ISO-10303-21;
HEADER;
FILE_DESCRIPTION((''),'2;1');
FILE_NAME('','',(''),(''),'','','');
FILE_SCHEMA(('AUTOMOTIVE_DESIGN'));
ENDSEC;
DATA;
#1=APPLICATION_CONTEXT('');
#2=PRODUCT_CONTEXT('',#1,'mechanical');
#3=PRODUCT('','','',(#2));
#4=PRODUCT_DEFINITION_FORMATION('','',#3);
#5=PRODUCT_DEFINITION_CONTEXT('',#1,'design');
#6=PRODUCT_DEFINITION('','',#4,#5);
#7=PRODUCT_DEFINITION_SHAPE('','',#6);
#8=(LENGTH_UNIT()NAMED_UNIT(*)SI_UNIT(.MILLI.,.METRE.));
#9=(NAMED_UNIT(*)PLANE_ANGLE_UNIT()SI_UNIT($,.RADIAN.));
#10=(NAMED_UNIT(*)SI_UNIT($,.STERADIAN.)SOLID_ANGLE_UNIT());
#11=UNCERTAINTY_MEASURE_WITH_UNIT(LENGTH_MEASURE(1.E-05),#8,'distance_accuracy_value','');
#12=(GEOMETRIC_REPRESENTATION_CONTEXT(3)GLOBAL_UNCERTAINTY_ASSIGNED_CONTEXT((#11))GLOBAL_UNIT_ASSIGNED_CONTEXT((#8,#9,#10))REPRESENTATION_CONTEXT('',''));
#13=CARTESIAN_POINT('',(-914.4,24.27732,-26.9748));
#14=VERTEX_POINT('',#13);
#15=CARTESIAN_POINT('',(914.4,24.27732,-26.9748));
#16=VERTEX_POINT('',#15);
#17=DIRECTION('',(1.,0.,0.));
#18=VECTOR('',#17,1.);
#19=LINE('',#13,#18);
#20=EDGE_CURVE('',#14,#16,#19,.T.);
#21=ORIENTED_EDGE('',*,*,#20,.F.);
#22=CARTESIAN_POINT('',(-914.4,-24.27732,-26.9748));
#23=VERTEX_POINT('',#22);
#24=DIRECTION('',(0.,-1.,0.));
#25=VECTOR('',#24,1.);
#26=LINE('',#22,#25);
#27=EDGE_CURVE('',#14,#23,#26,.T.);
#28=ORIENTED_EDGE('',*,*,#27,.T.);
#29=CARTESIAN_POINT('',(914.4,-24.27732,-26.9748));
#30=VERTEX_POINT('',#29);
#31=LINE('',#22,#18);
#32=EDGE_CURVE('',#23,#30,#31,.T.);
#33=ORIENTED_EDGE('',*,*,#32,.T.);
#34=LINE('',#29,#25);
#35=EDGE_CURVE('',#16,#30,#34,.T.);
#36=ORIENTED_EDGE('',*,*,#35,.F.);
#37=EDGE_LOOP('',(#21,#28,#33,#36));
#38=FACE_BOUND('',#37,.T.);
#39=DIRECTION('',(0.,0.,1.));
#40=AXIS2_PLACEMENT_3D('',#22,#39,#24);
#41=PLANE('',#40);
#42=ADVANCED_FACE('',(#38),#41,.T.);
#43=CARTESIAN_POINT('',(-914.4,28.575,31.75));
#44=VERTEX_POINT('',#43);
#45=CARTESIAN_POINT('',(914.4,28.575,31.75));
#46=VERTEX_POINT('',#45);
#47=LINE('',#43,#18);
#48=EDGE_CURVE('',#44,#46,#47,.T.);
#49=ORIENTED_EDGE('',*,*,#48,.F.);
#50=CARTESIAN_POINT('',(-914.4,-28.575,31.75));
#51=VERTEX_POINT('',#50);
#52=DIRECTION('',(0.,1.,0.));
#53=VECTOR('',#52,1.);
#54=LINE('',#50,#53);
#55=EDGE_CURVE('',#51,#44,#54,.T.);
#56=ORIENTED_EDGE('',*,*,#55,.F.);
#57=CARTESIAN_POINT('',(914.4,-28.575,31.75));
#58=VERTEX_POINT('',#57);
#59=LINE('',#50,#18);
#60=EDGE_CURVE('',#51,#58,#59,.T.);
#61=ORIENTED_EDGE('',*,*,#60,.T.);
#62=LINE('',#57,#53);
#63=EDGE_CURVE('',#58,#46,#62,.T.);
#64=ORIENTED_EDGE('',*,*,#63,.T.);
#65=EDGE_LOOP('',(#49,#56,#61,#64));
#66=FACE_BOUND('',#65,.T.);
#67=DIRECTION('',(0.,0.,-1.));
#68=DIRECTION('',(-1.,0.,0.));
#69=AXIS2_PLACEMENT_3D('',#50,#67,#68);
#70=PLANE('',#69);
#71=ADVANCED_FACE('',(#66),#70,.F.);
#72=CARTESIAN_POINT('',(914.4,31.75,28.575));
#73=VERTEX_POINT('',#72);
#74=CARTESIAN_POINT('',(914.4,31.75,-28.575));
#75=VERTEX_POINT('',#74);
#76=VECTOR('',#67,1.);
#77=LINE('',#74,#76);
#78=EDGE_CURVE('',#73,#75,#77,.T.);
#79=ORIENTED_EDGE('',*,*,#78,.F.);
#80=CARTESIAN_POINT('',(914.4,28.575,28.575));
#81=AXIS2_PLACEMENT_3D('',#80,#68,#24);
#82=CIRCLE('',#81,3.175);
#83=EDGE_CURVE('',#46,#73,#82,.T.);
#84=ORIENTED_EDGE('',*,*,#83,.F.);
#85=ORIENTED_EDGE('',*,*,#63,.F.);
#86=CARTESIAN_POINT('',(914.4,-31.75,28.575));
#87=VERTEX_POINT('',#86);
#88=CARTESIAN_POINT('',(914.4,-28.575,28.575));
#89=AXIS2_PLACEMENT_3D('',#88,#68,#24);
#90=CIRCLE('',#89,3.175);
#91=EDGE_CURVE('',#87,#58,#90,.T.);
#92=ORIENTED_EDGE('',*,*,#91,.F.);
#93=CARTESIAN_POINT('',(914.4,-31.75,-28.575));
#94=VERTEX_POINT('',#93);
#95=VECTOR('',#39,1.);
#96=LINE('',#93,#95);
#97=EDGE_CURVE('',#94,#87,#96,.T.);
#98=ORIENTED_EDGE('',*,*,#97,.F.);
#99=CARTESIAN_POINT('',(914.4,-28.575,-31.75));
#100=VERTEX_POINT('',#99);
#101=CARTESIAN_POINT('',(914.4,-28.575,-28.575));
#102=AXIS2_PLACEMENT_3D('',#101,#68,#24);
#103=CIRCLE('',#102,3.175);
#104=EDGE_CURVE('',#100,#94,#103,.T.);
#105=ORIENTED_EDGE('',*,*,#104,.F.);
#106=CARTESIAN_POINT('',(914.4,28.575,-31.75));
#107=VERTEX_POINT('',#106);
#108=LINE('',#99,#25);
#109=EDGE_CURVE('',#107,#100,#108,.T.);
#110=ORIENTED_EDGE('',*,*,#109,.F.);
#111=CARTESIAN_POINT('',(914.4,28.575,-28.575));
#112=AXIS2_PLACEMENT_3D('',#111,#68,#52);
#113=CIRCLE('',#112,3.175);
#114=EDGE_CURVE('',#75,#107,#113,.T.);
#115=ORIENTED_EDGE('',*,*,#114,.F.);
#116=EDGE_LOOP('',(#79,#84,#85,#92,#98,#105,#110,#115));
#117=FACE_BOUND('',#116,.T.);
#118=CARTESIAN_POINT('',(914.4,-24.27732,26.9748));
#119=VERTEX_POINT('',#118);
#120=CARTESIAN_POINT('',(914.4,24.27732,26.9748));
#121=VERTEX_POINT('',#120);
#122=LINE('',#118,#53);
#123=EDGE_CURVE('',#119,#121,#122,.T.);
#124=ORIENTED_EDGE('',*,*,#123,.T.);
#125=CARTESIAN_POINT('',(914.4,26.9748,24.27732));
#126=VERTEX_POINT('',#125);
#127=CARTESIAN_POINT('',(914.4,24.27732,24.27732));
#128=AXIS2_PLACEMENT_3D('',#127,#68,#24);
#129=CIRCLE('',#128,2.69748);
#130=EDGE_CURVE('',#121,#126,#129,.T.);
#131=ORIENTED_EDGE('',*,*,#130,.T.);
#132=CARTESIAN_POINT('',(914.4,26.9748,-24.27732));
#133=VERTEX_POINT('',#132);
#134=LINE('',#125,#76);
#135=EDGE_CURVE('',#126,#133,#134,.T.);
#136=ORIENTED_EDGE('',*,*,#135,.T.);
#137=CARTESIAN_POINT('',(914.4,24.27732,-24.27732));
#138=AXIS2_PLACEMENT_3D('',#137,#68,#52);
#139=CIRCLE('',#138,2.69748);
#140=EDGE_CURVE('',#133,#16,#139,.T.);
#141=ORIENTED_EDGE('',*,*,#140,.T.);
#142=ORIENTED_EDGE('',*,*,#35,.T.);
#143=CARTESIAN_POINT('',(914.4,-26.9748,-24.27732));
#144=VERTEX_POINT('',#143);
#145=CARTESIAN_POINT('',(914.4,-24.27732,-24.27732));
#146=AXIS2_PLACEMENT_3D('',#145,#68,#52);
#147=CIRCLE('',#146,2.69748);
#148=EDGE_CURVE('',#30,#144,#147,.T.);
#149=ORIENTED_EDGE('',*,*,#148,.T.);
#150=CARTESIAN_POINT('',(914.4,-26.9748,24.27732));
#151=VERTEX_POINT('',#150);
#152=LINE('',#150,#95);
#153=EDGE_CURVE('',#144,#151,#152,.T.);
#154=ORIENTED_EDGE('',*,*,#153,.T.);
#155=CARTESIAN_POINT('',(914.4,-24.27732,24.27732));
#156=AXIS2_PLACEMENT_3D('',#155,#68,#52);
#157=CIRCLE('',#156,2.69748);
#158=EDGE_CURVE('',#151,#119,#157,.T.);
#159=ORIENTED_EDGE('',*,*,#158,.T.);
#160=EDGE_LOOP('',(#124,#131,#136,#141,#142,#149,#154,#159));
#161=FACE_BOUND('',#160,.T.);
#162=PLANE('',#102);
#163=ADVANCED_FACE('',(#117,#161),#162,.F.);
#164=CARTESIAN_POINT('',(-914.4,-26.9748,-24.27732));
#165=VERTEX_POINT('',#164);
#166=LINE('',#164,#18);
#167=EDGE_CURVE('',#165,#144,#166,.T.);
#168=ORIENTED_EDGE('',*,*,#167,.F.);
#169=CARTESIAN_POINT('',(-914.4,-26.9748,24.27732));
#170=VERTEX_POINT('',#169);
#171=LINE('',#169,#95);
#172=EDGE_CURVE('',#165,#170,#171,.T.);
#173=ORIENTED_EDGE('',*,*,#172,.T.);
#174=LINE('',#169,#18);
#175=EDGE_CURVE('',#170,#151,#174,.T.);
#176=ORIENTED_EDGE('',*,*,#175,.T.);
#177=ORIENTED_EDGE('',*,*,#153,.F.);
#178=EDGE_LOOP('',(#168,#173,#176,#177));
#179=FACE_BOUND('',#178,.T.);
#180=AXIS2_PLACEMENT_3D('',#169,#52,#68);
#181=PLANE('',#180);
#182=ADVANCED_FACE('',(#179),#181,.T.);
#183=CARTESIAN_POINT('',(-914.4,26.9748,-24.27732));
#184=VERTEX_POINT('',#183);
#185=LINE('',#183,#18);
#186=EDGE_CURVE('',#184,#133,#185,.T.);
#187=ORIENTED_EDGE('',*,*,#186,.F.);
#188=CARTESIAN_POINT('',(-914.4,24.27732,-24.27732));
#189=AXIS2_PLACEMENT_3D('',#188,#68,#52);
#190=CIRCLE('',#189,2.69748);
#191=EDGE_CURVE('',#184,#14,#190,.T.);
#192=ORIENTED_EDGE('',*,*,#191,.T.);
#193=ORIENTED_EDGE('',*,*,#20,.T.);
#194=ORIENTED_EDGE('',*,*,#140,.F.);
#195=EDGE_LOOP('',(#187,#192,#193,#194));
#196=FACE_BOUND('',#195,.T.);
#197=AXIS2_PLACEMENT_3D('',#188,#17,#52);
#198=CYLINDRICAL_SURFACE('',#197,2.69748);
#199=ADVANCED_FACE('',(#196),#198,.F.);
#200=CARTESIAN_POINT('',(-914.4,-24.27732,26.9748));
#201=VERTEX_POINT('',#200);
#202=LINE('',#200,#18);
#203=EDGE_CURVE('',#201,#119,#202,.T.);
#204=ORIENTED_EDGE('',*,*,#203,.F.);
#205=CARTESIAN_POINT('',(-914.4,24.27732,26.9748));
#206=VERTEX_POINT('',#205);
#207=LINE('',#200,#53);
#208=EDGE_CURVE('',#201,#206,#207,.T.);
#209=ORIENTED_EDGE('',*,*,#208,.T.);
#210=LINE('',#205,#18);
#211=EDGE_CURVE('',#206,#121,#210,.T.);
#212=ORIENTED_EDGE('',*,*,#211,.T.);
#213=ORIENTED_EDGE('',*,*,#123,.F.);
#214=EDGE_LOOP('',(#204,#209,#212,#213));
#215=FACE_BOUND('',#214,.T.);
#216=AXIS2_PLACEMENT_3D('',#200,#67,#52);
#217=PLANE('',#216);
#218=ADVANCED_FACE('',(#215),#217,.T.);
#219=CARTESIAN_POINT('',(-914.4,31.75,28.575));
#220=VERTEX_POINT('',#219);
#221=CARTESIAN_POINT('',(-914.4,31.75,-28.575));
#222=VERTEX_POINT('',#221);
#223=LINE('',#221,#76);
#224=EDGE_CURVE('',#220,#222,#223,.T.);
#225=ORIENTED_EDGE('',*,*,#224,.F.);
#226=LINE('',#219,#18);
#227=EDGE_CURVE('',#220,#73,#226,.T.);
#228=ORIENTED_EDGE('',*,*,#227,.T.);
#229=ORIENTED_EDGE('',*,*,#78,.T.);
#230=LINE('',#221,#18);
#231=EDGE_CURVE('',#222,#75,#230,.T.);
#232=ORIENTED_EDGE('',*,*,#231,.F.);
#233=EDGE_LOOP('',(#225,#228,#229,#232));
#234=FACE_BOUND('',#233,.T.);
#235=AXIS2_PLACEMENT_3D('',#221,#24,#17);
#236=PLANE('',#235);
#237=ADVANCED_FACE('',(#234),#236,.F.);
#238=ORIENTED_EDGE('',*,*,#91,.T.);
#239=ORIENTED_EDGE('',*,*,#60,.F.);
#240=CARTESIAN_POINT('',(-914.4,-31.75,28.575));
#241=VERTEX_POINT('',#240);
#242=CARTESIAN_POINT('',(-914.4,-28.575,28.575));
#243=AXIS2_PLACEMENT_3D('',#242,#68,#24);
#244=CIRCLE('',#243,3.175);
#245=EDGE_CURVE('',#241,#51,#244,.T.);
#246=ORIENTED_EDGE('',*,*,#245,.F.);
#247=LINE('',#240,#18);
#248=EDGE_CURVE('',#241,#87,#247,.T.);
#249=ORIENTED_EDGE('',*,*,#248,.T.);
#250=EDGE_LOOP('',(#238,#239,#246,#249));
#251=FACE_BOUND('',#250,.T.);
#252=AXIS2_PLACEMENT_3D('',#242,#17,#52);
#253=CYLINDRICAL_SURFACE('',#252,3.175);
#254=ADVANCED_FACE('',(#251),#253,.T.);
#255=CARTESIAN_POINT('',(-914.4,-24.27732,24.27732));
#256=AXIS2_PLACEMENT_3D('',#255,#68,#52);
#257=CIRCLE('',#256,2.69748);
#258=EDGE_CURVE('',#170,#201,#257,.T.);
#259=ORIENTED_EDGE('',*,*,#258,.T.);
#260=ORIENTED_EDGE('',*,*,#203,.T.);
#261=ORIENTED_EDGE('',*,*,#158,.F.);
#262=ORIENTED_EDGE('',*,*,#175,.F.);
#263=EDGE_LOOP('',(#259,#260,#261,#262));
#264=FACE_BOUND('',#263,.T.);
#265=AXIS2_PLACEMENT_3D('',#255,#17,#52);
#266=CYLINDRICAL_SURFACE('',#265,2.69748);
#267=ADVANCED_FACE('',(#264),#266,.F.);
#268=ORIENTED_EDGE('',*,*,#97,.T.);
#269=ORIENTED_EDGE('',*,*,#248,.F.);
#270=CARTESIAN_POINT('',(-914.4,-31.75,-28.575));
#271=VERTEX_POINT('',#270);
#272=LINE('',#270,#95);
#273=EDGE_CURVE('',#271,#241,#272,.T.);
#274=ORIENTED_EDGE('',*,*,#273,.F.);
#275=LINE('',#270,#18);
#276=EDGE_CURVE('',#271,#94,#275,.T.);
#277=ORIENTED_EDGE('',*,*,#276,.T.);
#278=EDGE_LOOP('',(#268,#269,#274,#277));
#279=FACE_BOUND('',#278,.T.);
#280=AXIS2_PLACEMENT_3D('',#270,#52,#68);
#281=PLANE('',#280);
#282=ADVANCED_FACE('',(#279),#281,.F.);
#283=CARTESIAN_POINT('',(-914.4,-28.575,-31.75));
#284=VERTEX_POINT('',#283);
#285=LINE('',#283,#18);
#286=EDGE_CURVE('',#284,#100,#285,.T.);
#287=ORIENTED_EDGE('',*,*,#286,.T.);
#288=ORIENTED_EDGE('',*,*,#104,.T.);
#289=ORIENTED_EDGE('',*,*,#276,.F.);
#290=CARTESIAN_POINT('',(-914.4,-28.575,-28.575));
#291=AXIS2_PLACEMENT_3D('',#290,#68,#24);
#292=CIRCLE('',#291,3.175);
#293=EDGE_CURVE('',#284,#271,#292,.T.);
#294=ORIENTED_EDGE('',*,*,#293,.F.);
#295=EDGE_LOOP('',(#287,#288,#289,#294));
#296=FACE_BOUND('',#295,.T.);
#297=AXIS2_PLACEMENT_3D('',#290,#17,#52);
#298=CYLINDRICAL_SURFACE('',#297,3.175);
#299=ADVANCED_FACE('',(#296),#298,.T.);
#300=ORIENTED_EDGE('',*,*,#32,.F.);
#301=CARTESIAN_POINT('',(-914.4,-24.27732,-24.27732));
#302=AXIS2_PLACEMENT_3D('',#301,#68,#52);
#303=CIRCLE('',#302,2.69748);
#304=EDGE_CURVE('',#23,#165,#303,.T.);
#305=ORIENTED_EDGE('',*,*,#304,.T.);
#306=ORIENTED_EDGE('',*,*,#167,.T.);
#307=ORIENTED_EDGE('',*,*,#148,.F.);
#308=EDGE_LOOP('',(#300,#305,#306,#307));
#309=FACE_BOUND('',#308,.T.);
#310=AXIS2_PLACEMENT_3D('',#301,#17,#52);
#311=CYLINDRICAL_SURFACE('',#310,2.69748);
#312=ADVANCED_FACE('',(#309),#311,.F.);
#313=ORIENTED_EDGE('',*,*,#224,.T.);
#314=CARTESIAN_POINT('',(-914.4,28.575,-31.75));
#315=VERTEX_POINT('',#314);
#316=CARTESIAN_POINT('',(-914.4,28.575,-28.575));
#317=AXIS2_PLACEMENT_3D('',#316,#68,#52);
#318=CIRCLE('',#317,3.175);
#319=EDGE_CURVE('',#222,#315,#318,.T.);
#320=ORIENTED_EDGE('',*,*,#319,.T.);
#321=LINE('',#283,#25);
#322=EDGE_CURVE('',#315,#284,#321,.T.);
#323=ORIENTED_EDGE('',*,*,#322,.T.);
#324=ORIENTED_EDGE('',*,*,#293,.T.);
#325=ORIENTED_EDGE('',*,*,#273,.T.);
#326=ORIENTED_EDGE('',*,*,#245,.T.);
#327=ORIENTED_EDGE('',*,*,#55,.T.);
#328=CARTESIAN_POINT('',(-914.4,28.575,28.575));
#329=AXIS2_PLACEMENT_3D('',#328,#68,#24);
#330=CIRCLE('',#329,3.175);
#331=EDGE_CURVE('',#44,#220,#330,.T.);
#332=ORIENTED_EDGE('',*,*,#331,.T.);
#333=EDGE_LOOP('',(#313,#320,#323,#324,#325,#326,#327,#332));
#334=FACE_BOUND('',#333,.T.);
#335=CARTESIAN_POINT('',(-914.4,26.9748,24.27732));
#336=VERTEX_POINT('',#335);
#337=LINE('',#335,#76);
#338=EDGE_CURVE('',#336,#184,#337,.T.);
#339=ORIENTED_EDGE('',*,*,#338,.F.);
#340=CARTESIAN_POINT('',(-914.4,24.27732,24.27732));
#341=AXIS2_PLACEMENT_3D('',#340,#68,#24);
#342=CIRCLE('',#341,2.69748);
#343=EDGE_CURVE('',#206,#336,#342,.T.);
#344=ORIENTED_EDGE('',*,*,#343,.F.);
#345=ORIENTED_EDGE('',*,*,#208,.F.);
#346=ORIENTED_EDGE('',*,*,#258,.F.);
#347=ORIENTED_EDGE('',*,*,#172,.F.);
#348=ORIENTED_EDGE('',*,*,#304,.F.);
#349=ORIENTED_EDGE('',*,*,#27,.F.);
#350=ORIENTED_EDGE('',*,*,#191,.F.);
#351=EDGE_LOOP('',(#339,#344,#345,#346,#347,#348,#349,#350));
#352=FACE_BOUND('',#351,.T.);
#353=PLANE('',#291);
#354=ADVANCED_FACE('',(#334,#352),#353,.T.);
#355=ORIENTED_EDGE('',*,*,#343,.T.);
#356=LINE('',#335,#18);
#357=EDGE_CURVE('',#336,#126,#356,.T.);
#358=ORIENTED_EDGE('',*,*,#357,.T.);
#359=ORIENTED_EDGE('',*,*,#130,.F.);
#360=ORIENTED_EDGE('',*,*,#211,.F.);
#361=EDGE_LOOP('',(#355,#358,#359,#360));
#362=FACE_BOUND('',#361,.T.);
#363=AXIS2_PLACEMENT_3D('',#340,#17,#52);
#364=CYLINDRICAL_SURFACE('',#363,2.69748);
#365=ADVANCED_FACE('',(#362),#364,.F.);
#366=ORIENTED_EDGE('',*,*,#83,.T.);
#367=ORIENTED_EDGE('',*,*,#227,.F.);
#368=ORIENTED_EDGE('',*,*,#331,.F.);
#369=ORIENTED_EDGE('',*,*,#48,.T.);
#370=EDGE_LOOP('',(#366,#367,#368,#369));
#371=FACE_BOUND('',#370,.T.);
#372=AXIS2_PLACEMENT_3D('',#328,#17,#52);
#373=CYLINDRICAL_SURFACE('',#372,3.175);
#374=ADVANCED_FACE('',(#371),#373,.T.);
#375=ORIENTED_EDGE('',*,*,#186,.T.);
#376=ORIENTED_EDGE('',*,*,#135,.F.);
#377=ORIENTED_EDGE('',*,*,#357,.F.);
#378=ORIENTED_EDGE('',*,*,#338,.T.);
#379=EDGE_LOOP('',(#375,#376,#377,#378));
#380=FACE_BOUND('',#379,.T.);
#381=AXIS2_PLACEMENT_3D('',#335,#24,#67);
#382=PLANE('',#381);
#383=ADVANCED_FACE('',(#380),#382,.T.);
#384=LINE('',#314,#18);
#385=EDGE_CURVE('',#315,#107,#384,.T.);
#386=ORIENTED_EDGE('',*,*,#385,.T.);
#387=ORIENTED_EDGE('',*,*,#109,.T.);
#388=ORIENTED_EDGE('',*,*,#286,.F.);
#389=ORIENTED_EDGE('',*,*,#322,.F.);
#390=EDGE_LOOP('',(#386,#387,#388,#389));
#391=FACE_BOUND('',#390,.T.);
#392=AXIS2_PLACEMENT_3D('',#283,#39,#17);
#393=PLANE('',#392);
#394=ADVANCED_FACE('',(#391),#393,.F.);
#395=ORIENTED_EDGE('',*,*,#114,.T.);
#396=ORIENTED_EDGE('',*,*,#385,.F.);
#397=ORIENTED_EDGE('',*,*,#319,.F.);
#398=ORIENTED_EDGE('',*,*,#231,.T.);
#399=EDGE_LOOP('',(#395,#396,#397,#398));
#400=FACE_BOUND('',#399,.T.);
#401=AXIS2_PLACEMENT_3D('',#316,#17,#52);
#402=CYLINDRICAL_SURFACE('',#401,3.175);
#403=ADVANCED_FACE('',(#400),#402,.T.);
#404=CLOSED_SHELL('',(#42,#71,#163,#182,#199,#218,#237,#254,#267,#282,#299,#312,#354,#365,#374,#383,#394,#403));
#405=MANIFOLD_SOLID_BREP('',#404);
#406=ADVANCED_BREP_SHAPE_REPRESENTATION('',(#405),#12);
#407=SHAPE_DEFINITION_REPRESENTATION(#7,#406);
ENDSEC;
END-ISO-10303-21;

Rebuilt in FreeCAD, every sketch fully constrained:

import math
import FreeCAD as App
import Part
import Sketcher
Q = App.Units.Quantity

doc = App.newDocument("Part")
body = doc.addObject("PartDesign::Body", "Body")

# Sketch on YZ plane
sketch1 = body.newObject("Sketcher::SketchObject", "Sketch")
sketch1.AttachmentSupport = (doc.getObject("YZ_Plane"), [""])
sketch1.MapMode = "FlatFace"
sketch1.AttachmentOffset = App.Placement(App.Vector(0, 0, 36 * 25.4), App.Rotation())
sketch1.addGeometry(Part.LineSegment(App.Vector(28.575, -31.75, 0), App.Vector(-28.575, -31.75, 0)), False)
sketch1.addGeometry(Part.ArcOfCircle(Part.Circle(App.Vector(-28.575, -28.575, 0), App.Vector(0, 0, 1), 3.175), math.radians(-180), math.radians(-90)), False)
sketch1.addGeometry(Part.LineSegment(App.Vector(-31.75, -28.575, 0), App.Vector(-31.75, 28.575, 0)), False)
sketch1.addGeometry(Part.ArcOfCircle(Part.Circle(App.Vector(-28.575, 28.575, 0), App.Vector(0, 0, 1), 3.175), math.radians(90), math.radians(180)), False)
sketch1.addGeometry(Part.LineSegment(App.Vector(-28.575, 31.75, 0), App.Vector(28.575, 31.75, 0)), False)
sketch1.addGeometry(Part.ArcOfCircle(Part.Circle(App.Vector(28.575, 28.575, 0), App.Vector(0, 0, 1), 3.175), math.radians(0), math.radians(90)), False)
sketch1.addGeometry(Part.LineSegment(App.Vector(31.75, 28.575, 0), App.Vector(31.75, -28.575, 0)), False)
sketch1.addGeometry(Part.ArcOfCircle(Part.Circle(App.Vector(28.575, -28.575, 0), App.Vector(0, 0, 1), 3.175), math.radians(-90), math.radians(0)), False)
sketch1.addGeometry(Part.ArcOfCircle(Part.Circle(App.Vector(-24.27732, 24.27732, 0), App.Vector(0, 0, 1), 2.69748), math.radians(90), math.radians(180)), False)
sketch1.addGeometry(Part.LineSegment(App.Vector(-26.9748, 24.27732, 0), App.Vector(-26.9748, -24.27732, 0)), False)
sketch1.addGeometry(Part.ArcOfCircle(Part.Circle(App.Vector(-24.27732, -24.27732, 0), App.Vector(0, 0, 1), 2.69748), math.radians(180), math.radians(270)), False)
sketch1.addGeometry(Part.LineSegment(App.Vector(-24.27732, -26.9748, 0), App.Vector(24.27732, -26.9748, 0)), False)
sketch1.addGeometry(Part.ArcOfCircle(Part.Circle(App.Vector(24.27732, -24.27732, 0), App.Vector(0, 0, 1), 2.69748), math.radians(-90), math.radians(0)), False)
sketch1.addGeometry(Part.LineSegment(App.Vector(26.9748, -24.27732, 0), App.Vector(26.9748, 24.27732, 0)), False)
sketch1.addGeometry(Part.ArcOfCircle(Part.Circle(App.Vector(24.27732, 24.27732, 0), App.Vector(0, 0, 1), 2.69748), math.radians(0), math.radians(90)), False)
sketch1.addGeometry(Part.LineSegment(App.Vector(24.27732, 26.9748, 0), App.Vector(-24.27732, 26.9748, 0)), False)
sketch1.addConstraint(Sketcher.Constraint("Tangent", 0, 2, 1, 2))
sketch1.addConstraint(Sketcher.Constraint("Tangent", 1, 1, 2, 1))
sketch1.addConstraint(Sketcher.Constraint("Tangent", 2, 2, 3, 2))
sketch1.addConstraint(Sketcher.Constraint("Tangent", 3, 1, 4, 1))
sketch1.addConstraint(Sketcher.Constraint("Tangent", 4, 2, 5, 2))
sketch1.addConstraint(Sketcher.Constraint("Tangent", 5, 1, 6, 1))
sketch1.addConstraint(Sketcher.Constraint("Tangent", 6, 2, 7, 2))
sketch1.addConstraint(Sketcher.Constraint("Tangent", 7, 1, 0, 1))
sketch1.addConstraint(Sketcher.Constraint("Tangent", 8, 2, 9, 1))
sketch1.addConstraint(Sketcher.Constraint("Tangent", 9, 2, 10, 1))
sketch1.addConstraint(Sketcher.Constraint("Tangent", 10, 2, 11, 1))
sketch1.addConstraint(Sketcher.Constraint("Tangent", 11, 2, 12, 1))
sketch1.addConstraint(Sketcher.Constraint("Tangent", 12, 2, 13, 1))
sketch1.addConstraint(Sketcher.Constraint("Tangent", 13, 2, 14, 1))
sketch1.addConstraint(Sketcher.Constraint("Tangent", 14, 2, 15, 1))
sketch1.addConstraint(Sketcher.Constraint("Tangent", 15, 2, 8, 1))
sketch1.addConstraint(Sketcher.Constraint("Horizontal", 0))
sketch1.addConstraint(Sketcher.Constraint("Vertical", 2))
sketch1.addConstraint(Sketcher.Constraint("Horizontal", 4))
sketch1.addConstraint(Sketcher.Constraint("Vertical", 6))
sketch1.addConstraint(Sketcher.Constraint("Vertical", 9))
sketch1.addConstraint(Sketcher.Constraint("Horizontal", 11))
sketch1.addConstraint(Sketcher.Constraint("Vertical", 13))
sketch1.addConstraint(Sketcher.Constraint("Horizontal", 15))
sketch1.addConstraint(Sketcher.Constraint("Equal", 1, 3))
sketch1.addConstraint(Sketcher.Constraint("Equal", 3, 5))
sketch1.addConstraint(Sketcher.Constraint("Equal", 5, 7))
sketch1.addConstraint(Sketcher.Constraint("Equal", 8, 10))
sketch1.addConstraint(Sketcher.Constraint("Equal", 10, 12))
sketch1.addConstraint(Sketcher.Constraint("Equal", 12, 14))
sketch1.addConstraint(Sketcher.Constraint("Symmetric", 1, 3, 5, 3, -1, 1))
sketch1.addConstraint(Sketcher.Constraint("Symmetric", 8, 3, 12, 3, -1, 1))
sketch1.addConstraint(Sketcher.Constraint("Equal", 4, 2))
sketch1.addConstraint(Sketcher.Constraint("Equal", 15, 9))
sketch1.addConstraint(Sketcher.Constraint("Radius", 1, Q("0.125 in")))
sketch1.addConstraint(Sketcher.Constraint("DistanceX", 0, 2, 0, 1, Q("2.25 in")))
sketch1.addConstraint(Sketcher.Constraint("Radius", 8, Q("0.1062 in")))
sketch1.addConstraint(Sketcher.Constraint("DistanceX", 11, 1, 11, 2, Q("1.9116 in")))
pad1 = body.newObject("PartDesign::Pad", "Pad")
pad1.Profile = sketch1
pad1.Length = Q("72 in")
pad1.Reversed = True

doc.recompute()
